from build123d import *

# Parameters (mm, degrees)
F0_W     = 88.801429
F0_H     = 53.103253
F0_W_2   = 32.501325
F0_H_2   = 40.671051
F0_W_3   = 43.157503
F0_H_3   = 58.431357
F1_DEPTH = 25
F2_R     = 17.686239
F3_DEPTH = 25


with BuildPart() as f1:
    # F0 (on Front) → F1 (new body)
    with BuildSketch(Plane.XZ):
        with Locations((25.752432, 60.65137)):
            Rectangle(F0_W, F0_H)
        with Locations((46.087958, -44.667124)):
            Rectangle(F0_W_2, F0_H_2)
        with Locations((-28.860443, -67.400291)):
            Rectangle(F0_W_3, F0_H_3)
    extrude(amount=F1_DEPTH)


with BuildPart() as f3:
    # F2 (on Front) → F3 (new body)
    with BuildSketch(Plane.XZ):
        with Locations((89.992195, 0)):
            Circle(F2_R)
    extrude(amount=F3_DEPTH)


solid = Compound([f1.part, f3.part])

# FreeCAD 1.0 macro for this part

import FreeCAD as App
import Part
import Sketcher
from FreeCAD import Vector

doc = App.newDocument("Part")
body = doc.addObject("PartDesign::Body", "Body")
body.AllowCompound = True

# Sketch on XZ plane
sketch1 = body.newObject("Sketcher::SketchObject", "Sketch")
sketch1.AttachmentSupport = (doc.getObject("XZ_Plane"), [""])
sketch1.MapMode = "FlatFace"
sketch1.addGeometry([
    Part.LineSegment(Vector(-18.648283, 87.202996, 0), Vector(-18.648283, 34.099744, 0)),  # 0
    Part.LineSegment(Vector(-18.648283, 34.099744, 0), Vector(70.153147, 34.099744, 0)),  # 1
    Part.LineSegment(Vector(70.153147, 34.099744, 0), Vector(70.153147, 87.202996, 0)),  # 2
    Part.LineSegment(Vector(70.153147, 87.202996, 0), Vector(-18.648283, 87.202996, 0)),  # 3
    Part.LineSegment(Vector(29.837295, -24.331598, 0), Vector(29.837295, -65.00265, 0)),  # 4
    Part.LineSegment(Vector(29.837295, -65.00265, 0), Vector(62.33862, -65.00265, 0)),  # 5
    Part.LineSegment(Vector(62.33862, -65.00265, 0), Vector(62.33862, -24.331598, 0)),  # 6
    Part.LineSegment(Vector(62.33862, -24.331598, 0), Vector(29.837295, -24.331598, 0)),  # 7
    Part.LineSegment(Vector(-50.439194, -38.184613, 0), Vector(-50.439194, -96.61597, 0)),  # 8
    Part.LineSegment(Vector(-50.439194, -96.61597, 0), Vector(-7.281691, -96.61597, 0)),  # 9
    Part.LineSegment(Vector(-7.281691, -96.61597, 0), Vector(-7.281691, -38.184613, 0)),  # 10
    Part.LineSegment(Vector(-7.281691, -38.184613, 0), Vector(-50.439194, -38.184613, 0)),  # 11
], False)
sketch1.addConstraint([
    Sketcher.Constraint("Coincident", 0, 2, 1, 1),
    Sketcher.Constraint("Coincident", 1, 2, 2, 1),
    Sketcher.Constraint("Coincident", 2, 2, 3, 1),
    Sketcher.Constraint("Coincident", 3, 2, 0, 1),
    Sketcher.Constraint("Coincident", 4, 2, 5, 1),
    Sketcher.Constraint("Coincident", 5, 2, 6, 1),
    Sketcher.Constraint("Coincident", 6, 2, 7, 1),
    Sketcher.Constraint("Coincident", 7, 2, 4, 1),
    Sketcher.Constraint("Coincident", 8, 2, 9, 1),
    Sketcher.Constraint("Coincident", 9, 2, 10, 1),
    Sketcher.Constraint("Coincident", 10, 2, 11, 1),
    Sketcher.Constraint("Coincident", 11, 2, 8, 1),
    Sketcher.Constraint("Vertical", 0),
    Sketcher.Constraint("Horizontal", 1),
    Sketcher.Constraint("Vertical", 2),
    Sketcher.Constraint("Horizontal", 3),
    Sketcher.Constraint("Vertical", 4),
    Sketcher.Constraint("Horizontal", 5),
    Sketcher.Constraint("Vertical", 6),
    Sketcher.Constraint("Horizontal", 7),
    Sketcher.Constraint("Vertical", 8),
    Sketcher.Constraint("Horizontal", 9),
    Sketcher.Constraint("Vertical", 10),
    Sketcher.Constraint("Horizontal", 11),
    Sketcher.Constraint("DistanceX", 1, 1, 1, 2, 88.801429),
    Sketcher.Constraint("DistanceY", 4, 2, 4, 1, 40.671051),
    Sketcher.Constraint("DistanceY", 6, 2, -1, 1, 24.331598),
    Sketcher.Constraint("DistanceX", 5, 1, 5, 2, 32.501325),
    Sketcher.Constraint("DistanceX", 9, 1, 9, 2, 43.157503),
    Sketcher.Constraint("DistanceY", 0, 2, 0, 1, 53.103253),
    Sketcher.Constraint("DistanceY", 8, 2, 8, 1, 58.431357),
    Sketcher.Constraint("DistanceX", -1, 1, 5, 2, 62.33862),
    Sketcher.Constraint("DistanceY", 8, 2, -1, 1, 96.61597),
    Sketcher.Constraint("DistanceX", 9, 2, -1, 1, 7.281691),
    Sketcher.Constraint("DistanceX", 4, 2, 1, 2, 40.315851),
    Sketcher.Constraint("DistanceY", -1, 1, 0, 2, 34.099744),
])
pad1 = body.newObject("PartDesign::Pad", "Pad")
pad1.Profile = sketch1
pad1.Length = 25
body2 = doc.addObject("PartDesign::Body", "Body001")

# Sketch on XZ plane
sketch2 = body2.newObject("Sketcher::SketchObject", "Sketch001")
sketch2.AttachmentSupport = (doc.getObject("XZ_Plane001"), [""])
sketch2.MapMode = "FlatFace"
sketch2.addGeometry(Part.Circle(Vector(89.992195, 0, 0), Vector(0, 0, 1), 17.686239), False)
sketch2.addConstraint([
    Sketcher.Constraint("PointOnObject", 0, 3, -1),
    Sketcher.Constraint("Diameter", 0, 35.372478),
    Sketcher.Constraint("DistanceX", -1, 1, 0, 3, 89.992195),
])
pad2 = body2.newObject("PartDesign::Pad", "Pad001")
pad2.Profile = sketch2
pad2.Length = 25

doc.recompute()
